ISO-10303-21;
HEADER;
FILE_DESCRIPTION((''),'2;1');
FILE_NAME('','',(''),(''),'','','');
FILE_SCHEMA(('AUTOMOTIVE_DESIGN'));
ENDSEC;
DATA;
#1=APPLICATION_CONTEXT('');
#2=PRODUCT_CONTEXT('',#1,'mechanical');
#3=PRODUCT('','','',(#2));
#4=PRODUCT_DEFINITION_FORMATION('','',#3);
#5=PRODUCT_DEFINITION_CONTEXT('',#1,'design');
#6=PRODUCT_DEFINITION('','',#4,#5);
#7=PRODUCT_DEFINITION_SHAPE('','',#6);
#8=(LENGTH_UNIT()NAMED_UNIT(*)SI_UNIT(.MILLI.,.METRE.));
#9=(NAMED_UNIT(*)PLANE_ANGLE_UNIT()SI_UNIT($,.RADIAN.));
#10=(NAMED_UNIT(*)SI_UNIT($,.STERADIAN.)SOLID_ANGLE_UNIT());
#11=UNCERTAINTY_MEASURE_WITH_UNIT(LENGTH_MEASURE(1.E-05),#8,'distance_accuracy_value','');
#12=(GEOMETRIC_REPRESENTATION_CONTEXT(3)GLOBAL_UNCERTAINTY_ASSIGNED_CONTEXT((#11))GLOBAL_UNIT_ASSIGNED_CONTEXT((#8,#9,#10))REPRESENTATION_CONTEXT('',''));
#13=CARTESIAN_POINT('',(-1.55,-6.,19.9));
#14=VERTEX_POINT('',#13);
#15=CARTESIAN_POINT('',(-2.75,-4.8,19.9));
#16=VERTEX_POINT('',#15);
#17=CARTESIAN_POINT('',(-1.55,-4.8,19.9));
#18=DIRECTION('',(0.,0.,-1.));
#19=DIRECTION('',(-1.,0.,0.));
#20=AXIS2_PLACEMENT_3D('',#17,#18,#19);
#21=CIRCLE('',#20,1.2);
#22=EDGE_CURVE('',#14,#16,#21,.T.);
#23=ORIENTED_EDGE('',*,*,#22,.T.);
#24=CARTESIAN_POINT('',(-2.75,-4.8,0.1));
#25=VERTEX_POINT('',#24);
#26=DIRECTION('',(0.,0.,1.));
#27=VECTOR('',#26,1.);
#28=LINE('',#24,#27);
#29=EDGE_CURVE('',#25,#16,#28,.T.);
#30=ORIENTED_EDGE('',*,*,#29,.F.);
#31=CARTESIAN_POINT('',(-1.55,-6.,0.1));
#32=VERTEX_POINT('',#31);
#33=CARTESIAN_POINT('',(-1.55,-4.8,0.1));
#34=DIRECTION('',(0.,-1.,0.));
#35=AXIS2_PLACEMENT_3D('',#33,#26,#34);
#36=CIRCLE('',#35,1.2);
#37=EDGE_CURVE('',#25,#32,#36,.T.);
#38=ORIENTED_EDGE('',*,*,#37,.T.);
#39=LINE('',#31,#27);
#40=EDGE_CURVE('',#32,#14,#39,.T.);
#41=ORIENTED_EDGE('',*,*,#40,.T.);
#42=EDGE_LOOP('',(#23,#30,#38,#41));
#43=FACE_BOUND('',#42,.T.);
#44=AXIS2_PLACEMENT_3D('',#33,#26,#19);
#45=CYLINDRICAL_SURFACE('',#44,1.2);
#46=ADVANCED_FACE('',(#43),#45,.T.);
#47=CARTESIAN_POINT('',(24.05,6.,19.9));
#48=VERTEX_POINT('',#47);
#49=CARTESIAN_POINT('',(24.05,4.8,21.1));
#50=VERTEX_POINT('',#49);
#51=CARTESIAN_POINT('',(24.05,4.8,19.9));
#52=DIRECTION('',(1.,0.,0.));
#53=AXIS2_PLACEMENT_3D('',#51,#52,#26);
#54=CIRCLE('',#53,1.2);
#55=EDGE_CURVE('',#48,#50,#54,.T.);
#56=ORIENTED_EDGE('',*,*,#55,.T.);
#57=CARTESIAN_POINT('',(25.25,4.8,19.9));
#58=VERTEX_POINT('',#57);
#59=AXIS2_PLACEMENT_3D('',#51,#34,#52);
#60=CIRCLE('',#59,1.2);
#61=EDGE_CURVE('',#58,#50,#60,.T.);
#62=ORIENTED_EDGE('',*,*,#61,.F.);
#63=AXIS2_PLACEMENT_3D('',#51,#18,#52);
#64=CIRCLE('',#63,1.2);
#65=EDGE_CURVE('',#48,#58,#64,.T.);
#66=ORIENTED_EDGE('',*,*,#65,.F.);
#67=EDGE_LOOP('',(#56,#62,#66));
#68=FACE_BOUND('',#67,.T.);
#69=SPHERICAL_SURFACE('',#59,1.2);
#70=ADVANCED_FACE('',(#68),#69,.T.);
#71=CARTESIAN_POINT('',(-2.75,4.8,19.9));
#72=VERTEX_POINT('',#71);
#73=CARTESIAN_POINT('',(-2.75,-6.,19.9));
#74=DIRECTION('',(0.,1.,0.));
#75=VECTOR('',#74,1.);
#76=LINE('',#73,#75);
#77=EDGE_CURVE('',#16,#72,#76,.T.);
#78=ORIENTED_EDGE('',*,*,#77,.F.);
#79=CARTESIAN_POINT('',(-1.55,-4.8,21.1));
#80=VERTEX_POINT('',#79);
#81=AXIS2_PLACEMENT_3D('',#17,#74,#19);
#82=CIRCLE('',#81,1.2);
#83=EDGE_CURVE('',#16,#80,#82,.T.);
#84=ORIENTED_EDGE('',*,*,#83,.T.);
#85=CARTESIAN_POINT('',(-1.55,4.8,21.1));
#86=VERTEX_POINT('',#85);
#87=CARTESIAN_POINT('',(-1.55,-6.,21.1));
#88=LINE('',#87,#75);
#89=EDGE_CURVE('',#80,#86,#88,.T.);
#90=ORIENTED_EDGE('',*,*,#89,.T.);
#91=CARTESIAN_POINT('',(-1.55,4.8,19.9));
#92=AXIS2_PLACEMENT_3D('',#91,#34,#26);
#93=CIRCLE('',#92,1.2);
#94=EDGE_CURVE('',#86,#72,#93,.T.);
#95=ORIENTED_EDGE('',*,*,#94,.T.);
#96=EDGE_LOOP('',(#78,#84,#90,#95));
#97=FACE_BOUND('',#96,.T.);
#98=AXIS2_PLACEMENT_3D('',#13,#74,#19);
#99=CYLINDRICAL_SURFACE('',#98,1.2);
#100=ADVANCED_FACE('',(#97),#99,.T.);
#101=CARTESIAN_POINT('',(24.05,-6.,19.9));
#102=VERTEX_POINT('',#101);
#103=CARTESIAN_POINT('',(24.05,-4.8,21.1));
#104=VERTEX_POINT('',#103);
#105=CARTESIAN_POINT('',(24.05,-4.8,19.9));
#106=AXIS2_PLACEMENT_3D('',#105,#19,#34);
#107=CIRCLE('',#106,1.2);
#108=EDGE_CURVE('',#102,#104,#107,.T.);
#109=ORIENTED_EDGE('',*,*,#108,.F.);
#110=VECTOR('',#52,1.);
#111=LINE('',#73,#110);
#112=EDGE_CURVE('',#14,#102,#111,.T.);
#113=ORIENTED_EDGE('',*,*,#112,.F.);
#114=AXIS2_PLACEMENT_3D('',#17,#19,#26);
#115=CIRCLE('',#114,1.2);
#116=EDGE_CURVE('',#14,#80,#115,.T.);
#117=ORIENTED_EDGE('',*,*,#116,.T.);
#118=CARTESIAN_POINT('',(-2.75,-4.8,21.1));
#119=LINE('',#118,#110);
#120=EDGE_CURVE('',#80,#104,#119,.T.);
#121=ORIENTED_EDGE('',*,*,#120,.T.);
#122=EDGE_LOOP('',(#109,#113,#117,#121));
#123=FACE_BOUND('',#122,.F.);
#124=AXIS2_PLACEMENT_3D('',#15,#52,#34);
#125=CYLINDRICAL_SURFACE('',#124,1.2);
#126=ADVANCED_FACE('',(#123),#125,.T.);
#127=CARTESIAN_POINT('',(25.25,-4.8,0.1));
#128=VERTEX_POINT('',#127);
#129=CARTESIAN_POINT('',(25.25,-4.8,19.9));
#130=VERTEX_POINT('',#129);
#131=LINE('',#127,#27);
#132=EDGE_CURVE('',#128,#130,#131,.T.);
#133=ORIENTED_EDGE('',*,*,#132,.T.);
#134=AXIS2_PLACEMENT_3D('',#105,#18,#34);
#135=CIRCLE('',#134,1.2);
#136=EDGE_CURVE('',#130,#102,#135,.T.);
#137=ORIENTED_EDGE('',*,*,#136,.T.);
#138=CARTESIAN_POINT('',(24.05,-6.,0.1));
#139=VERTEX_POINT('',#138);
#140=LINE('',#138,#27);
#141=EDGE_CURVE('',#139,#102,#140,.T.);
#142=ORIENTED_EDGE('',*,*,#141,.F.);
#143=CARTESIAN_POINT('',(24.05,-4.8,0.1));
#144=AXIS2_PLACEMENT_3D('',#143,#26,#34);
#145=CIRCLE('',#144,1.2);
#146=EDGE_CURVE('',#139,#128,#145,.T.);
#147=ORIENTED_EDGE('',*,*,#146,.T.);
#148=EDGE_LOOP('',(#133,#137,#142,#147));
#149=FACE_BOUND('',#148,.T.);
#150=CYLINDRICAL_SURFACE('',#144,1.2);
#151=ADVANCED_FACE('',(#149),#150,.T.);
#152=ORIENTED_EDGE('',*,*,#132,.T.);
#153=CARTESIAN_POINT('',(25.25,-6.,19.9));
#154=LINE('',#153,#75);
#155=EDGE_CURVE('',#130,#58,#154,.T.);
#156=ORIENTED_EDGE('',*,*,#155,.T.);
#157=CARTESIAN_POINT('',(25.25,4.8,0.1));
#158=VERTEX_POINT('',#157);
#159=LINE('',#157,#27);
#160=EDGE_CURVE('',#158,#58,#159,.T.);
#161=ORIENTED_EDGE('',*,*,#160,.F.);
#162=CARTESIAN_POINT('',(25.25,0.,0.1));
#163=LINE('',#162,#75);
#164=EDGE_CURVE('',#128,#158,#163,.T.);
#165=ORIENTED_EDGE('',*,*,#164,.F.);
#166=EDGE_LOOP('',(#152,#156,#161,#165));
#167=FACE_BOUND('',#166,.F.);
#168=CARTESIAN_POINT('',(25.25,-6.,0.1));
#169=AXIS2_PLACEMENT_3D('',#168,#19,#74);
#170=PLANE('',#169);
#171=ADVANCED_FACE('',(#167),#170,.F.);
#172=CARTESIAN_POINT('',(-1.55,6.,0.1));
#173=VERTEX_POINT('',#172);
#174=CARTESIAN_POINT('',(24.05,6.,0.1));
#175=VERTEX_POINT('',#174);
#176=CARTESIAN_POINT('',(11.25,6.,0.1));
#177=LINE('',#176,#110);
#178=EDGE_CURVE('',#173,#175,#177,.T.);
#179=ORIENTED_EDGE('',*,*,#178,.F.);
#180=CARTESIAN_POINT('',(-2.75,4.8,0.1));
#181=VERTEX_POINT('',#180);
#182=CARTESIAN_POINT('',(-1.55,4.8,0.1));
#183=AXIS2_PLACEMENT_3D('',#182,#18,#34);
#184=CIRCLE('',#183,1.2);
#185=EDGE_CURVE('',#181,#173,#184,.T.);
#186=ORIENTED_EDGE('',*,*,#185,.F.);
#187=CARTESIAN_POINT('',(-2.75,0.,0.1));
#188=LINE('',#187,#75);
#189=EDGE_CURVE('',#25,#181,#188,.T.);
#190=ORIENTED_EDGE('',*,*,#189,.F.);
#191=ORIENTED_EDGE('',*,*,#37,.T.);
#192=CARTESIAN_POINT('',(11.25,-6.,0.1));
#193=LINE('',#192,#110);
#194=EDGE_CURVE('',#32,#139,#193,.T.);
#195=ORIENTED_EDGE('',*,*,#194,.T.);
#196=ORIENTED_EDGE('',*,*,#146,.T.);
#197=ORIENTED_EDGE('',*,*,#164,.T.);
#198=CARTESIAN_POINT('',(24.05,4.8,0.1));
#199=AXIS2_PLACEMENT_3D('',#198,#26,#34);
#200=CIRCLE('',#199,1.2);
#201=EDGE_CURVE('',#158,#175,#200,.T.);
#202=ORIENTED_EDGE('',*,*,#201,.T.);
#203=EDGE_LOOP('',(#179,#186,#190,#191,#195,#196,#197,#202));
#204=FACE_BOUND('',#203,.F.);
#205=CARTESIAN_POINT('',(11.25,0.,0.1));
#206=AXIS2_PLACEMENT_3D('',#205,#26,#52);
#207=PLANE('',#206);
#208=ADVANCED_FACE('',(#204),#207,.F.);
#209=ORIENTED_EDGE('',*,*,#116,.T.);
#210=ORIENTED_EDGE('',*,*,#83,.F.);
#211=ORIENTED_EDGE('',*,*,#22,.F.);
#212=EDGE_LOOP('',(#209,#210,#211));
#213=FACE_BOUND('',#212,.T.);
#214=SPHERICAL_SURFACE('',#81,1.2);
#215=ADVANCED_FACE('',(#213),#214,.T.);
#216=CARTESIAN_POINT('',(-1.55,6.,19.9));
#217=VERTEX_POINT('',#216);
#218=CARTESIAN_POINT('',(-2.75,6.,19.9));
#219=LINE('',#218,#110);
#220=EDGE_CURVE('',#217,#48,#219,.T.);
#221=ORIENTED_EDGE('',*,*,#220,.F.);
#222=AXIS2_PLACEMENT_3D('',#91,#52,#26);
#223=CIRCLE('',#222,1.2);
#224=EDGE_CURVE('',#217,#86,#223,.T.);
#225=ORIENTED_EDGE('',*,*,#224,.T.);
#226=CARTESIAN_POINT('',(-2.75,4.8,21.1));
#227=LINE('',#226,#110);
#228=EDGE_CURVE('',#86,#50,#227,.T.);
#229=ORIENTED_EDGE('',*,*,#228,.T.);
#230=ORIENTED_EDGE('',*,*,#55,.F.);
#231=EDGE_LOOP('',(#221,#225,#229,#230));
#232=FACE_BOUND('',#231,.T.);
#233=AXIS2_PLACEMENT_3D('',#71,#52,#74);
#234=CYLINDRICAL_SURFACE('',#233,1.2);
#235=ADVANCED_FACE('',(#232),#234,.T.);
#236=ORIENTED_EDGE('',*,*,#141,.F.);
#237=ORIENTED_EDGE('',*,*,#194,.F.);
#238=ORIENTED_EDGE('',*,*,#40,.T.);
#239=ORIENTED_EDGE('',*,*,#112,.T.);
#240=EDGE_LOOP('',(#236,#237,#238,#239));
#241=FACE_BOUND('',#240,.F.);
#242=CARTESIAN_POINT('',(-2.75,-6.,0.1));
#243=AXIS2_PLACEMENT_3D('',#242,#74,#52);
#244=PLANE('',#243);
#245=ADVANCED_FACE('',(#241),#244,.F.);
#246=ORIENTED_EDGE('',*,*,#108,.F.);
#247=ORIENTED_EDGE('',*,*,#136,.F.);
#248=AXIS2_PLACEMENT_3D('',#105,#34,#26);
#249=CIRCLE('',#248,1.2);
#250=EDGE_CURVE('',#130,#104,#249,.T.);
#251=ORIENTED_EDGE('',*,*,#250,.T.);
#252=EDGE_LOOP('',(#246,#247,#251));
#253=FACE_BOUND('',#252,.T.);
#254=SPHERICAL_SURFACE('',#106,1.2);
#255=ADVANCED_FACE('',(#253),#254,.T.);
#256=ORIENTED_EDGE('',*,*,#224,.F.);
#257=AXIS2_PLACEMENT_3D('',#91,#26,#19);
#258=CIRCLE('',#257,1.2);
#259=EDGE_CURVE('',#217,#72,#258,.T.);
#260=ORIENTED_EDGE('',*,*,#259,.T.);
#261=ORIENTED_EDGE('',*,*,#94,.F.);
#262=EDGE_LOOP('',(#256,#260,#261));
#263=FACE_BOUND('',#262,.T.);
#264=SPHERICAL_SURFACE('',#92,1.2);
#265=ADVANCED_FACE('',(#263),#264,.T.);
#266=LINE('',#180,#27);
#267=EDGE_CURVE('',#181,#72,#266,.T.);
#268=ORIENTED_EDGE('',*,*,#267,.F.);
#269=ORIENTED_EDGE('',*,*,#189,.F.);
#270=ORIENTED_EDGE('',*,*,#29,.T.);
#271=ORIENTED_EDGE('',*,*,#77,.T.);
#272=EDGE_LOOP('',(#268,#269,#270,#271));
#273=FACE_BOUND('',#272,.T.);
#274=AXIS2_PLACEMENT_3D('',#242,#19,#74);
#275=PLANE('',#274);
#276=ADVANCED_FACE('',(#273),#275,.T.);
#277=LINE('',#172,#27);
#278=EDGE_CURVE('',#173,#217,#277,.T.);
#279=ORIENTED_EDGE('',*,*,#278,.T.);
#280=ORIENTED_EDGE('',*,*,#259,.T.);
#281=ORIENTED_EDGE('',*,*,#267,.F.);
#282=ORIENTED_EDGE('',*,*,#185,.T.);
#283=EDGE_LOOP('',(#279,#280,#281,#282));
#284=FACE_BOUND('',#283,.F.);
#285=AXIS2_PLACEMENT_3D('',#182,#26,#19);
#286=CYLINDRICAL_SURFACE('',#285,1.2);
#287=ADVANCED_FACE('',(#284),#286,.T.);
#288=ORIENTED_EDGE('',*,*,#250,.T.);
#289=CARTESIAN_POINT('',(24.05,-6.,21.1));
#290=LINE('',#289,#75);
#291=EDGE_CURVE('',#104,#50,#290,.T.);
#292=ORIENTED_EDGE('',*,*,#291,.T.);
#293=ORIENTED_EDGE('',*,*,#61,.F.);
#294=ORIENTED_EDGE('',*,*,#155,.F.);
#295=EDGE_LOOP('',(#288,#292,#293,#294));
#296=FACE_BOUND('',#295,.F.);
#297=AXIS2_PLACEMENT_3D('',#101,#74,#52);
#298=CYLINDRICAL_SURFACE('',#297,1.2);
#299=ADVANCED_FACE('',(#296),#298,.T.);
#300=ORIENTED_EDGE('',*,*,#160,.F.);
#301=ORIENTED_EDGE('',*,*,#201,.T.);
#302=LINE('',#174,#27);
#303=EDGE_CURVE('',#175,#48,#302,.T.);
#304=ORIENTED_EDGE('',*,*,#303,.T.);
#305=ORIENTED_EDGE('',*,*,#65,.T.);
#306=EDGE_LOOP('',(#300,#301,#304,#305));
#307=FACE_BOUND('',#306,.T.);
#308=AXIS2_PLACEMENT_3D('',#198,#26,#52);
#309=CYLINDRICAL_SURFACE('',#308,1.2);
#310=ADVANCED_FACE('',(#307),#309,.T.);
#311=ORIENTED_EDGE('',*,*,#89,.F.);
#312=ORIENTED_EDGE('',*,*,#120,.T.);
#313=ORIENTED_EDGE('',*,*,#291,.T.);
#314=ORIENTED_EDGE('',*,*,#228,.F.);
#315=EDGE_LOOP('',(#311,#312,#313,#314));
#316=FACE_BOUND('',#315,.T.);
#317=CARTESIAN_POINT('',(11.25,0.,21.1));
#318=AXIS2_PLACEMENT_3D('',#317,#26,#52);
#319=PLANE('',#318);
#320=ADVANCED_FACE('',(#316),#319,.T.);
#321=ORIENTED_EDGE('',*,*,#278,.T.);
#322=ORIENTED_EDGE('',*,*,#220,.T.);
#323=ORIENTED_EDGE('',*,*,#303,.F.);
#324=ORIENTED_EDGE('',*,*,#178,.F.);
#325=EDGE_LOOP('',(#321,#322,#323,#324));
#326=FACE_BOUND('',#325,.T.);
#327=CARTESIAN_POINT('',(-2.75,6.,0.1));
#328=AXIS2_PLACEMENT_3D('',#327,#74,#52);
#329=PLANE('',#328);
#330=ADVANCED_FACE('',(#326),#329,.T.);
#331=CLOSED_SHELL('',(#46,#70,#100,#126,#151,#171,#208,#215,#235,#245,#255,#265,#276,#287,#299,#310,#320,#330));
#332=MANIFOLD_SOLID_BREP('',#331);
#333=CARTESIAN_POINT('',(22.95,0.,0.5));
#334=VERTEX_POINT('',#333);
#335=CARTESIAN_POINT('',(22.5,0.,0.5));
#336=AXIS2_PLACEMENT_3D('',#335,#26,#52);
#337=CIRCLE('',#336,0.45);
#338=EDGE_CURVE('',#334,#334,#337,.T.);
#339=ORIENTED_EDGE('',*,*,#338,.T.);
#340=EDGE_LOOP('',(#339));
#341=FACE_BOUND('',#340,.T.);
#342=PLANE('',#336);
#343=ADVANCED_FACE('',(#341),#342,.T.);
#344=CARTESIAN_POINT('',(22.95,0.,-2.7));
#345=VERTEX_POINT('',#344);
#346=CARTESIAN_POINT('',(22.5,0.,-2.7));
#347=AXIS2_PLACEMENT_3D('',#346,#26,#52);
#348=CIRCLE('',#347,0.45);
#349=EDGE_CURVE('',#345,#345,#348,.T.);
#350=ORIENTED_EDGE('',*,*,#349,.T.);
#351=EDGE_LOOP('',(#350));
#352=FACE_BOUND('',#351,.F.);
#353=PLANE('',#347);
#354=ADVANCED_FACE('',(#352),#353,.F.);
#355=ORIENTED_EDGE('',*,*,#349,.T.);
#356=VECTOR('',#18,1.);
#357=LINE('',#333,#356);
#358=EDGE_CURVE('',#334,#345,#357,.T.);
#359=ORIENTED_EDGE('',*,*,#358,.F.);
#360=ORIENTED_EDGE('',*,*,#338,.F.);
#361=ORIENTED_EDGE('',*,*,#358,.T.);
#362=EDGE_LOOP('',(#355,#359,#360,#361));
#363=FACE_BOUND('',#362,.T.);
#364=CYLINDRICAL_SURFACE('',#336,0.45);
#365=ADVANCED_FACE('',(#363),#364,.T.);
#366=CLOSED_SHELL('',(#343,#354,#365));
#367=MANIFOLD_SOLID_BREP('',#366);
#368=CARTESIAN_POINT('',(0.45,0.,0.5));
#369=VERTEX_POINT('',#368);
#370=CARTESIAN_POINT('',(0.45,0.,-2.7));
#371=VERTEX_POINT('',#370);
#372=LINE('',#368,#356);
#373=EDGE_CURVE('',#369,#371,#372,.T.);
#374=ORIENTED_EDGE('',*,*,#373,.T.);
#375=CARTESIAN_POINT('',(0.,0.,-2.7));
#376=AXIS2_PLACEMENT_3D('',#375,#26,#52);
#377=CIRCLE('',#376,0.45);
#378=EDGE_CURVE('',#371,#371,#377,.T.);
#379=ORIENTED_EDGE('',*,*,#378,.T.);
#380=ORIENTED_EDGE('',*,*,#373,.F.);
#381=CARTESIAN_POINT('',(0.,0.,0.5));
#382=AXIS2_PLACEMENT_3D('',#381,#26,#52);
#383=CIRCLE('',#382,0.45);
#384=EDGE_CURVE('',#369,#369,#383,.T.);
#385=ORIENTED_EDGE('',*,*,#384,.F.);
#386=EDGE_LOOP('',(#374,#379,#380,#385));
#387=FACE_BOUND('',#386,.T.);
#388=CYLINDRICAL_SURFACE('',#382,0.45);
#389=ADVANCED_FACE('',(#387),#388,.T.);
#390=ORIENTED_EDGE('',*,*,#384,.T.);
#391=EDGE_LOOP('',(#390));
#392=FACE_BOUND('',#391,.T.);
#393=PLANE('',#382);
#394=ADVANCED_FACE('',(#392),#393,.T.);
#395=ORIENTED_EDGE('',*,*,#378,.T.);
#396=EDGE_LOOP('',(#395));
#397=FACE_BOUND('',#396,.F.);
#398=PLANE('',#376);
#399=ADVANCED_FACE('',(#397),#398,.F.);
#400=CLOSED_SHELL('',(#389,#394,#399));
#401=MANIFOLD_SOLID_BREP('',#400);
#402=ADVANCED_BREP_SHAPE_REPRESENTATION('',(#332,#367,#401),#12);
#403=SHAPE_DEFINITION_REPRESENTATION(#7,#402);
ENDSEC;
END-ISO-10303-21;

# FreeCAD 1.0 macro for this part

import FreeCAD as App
import Part
import Sketcher

V = App.Vector
Q = App.Units.Quantity


def edges_at(feature, points):
    """Names of the edges that pass closest to the given points."""
    edges = feature.Shape.Edges
    near = lambda p: min(range(len(edges)), key=lambda i: edges[i].distToShape(Part.Vertex(*p))[0])
    return sorted({f"Edge{near(p) + 1}" for p in points})


def add_polygon(sketch, points):
    """Adds a closed chain of lines whose ends are joined by coincident constraints."""
    first, n = sketch.GeometryCount, len(points)
    for a, b in zip(points, points[1:] + points[:1]):
        sketch.addGeometry(Part.LineSegment(App.Vector(*a, 0), App.Vector(*b, 0)), False)
    for i in range(n):
        sketch.addConstraint(Sketcher.Constraint("Coincident", first + i, 2, first + (i + 1) % n, 1))

doc = App.newDocument("Part")
body = doc.addObject("PartDesign::Body", "Body")

# Sketch on XY plane
sketch1 = body.newObject("Sketcher::SketchObject", "Sketch")
sketch1.AttachmentSupport = (doc.getObject("XY_Plane"), [""])
sketch1.MapMode = "FlatFace"
sketch1.AttachmentOffset = App.Placement(V(0, 0, 0.1), App.Rotation())
add_polygon(sketch1, [(-3, 6), (-3, -6), (25, -6), (25, 6)])  # lines 0-3
sketch1.addConstraint(Sketcher.Constraint("Vertical", 0))
sketch1.addConstraint(Sketcher.Constraint("Horizontal", 1))
sketch1.addConstraint(Sketcher.Constraint("Vertical", 2))
sketch1.addConstraint(Sketcher.Constraint("Horizontal", 3))
sketch1.addConstraint(Sketcher.Constraint("DistanceX", 1, 1, 1, 2, Q("28 mm")))
sketch1.addConstraint(Sketcher.Constraint("DistanceY", 0, 2, 0, 1, Q("12 mm")))
sketch1.addConstraint(Sketcher.Constraint("DistanceY", 0, 2, -1, 1, Q("6 mm")))
sketch1.addConstraint(Sketcher.Constraint("DistanceX", 0, 2, -1, 1, Q("2.75 mm")))
pad1 = body.newObject("PartDesign::Pad", "Pad")
pad1.Profile = sketch1
pad1.Length = 21
doc.recompute()

fillet = body.newObject("PartDesign::Fillet", "Fillet")
fillet.Base = (pad1, edges_at(pad1, [
    (-2.75, 0, 21.1),
    (-2.75, -6, 10.6),
    (11.25, -6, 21.1),
    (25.25, -6, 10.6),
    (25.25, 0, 21.1),
    (25.25, 6, 10.6),
    (11.25, 6, 21.1),
    (-2.75, 6, 10.6),
]))
fillet.Radius = 1.2
body2 = doc.addObject("PartDesign::Body", "Body001")
body2.AllowCompound = True

# Sketch on XY plane
sketch2 = body2.newObject("Sketcher::SketchObject", "Sketch001")
sketch2.AttachmentSupport = (doc.getObject("XY_Plane001"), [""])
sketch2.MapMode = "FlatFace"
sketch2.AttachmentOffset = App.Placement(V(0, 0, 0.5), App.Rotation())
sketch2.addGeometry(Part.Circle(V(0, 0, 0), V(0, 0, 1), 0.45), False)
sketch2.addGeometry(Part.Circle(V(22.5, 0, 0), V(0, 0, 1), 0.45), False)
sketch2.addConstraint(Sketcher.Constraint("Coincident", 0, 3, -1, 1))
sketch2.addConstraint(Sketcher.Constraint("Equal", 0, 1))
sketch2.addConstraint(Sketcher.Constraint("PointOnObject", 1, 3, -1))
sketch2.addConstraint(Sketcher.Constraint("Diameter", 0, Q("0.9 mm")))
sketch2.addConstraint(Sketcher.Constraint("DistanceX", -1, 1, 1, 3, Q("22.5 mm")))
pad2 = body2.newObject("PartDesign::Pad", "Pad001")
pad2.Profile = sketch2
pad2.Length = 3.2
pad2.Reversed = True

doc.recompute()
